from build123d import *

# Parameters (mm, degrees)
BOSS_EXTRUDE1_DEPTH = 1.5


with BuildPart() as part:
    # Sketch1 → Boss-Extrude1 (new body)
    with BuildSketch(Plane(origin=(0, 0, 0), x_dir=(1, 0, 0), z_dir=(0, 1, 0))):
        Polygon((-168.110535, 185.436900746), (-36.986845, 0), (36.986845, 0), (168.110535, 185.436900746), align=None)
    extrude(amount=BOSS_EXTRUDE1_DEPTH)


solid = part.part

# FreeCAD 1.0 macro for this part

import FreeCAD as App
import Part
import Sketcher
from FreeCAD import Vector
Q = App.Units.Quantity


def add_polygon(sketch, points):
    """Adds a closed chain of lines whose ends are joined by coincident constraints."""
    first, n = sketch.GeometryCount, len(points)
    for a, b in zip(points, points[1:] + points[:1]):
        sketch.addGeometry(Part.LineSegment(App.Vector(*a, 0), App.Vector(*b, 0)), False)
    for i in range(n):
        sketch.addConstraint(Sketcher.Constraint("Coincident", first + i, 2, first + (i + 1) % n, 1))

doc = App.newDocument("Part")
body = doc.addObject("PartDesign::Body", "Body")

sketch1 = body.newObject("Sketcher::SketchObject", "Sketch")
sketch1.AttachmentSupport = (doc.getObject("XZ_Plane"), [""])
sketch1.MapMode = "FlatFace"
add_polygon(sketch1, [(-168, -185), (-37, 0), (37, 0), (168, -185)])
sketch1.addConstraint(Sketcher.Constraint("Horizontal", 1))
sketch1.addConstraint(Sketcher.Constraint("Horizontal", 3))
sketch1.addConstraint(Sketcher.Constraint("Symmetric", 0, 2, 1, 2, -1, 1))
sketch1.addConstraint(Sketcher.Constraint("Equal", 0, 2))
sketch1.addConstraint(Sketcher.Constraint("DistanceX", 1, 1, 1, 2, Q("73.97369 mm")))
sketch1.addConstraint(Sketcher.Constraint("DistanceX", 3, 2, 3, 1, Q("336.22107 mm")))
sketch1.addConstraint(Sketcher.Constraint("DistanceY", 2, 2, -1, 1, Q("185.436901 mm")))
pad1 = body.newObject("PartDesign::Pad", "Pad")
pad1.Profile = sketch1
pad1.Length = 1.5
pad1.Reversed = True

doc.recompute()
